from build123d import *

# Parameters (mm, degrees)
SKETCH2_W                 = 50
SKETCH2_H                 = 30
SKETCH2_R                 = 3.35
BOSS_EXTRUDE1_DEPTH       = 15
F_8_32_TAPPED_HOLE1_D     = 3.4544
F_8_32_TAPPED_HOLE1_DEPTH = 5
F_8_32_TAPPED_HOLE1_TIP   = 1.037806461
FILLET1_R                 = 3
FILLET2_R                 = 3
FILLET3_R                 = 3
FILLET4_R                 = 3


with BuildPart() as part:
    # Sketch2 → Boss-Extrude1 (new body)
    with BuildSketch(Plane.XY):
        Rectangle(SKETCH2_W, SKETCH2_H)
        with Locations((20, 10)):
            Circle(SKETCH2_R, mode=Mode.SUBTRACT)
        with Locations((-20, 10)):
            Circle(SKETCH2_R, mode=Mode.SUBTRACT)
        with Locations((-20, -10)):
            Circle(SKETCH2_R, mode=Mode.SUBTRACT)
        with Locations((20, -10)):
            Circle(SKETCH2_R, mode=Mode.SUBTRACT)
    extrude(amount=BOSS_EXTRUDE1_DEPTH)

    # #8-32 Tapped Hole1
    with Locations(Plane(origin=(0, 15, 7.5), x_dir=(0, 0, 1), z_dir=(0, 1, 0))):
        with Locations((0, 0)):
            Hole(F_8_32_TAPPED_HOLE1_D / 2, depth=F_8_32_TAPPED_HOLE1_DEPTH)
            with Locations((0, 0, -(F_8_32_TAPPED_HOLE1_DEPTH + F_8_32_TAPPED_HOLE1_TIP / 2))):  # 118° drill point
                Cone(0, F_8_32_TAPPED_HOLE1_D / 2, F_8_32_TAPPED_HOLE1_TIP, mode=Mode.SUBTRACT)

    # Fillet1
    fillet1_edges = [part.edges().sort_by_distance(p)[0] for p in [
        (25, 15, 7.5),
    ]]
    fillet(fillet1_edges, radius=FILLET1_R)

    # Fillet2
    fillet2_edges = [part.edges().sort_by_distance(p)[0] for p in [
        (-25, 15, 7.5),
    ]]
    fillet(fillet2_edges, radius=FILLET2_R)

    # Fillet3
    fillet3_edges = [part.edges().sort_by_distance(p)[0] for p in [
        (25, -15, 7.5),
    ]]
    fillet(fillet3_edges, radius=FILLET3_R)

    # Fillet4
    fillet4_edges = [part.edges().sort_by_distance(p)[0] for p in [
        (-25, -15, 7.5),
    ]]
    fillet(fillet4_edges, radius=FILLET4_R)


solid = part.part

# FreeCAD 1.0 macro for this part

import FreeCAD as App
import Part
import Sketcher
Q = App.Units.Quantity


def edges_at(feature, points):
    """Names of the edges that pass closest to the given points."""
    edges = feature.Shape.Edges
    near = lambda p: min(range(len(edges)), key=lambda i: edges[i].distToShape(Part.Vertex(*p))[0])
    return sorted({f"Edge{near(p) + 1}" for p in points})


def add_polygon(sketch, points):
    """Adds a closed chain of lines whose ends are joined by coincident constraints."""
    first, n = sketch.GeometryCount, len(points)
    for a, b in zip(points, points[1:] + points[:1]):
        sketch.addGeometry(Part.LineSegment(App.Vector(*a, 0), App.Vector(*b, 0)), False)
    for i in range(n):
        sketch.addConstraint(Sketcher.Constraint("Coincident", first + i, 2, first + (i + 1) % n, 1))

doc = App.newDocument("Part")
body = doc.addObject("PartDesign::Body", "Body")

# Sketch on XY plane
sketch1 = body.newObject("Sketcher::SketchObject", "Sketch")
sketch1.AttachmentSupport = (doc.getObject("XY_Plane"), [""])
sketch1.MapMode = "FlatFace"
add_polygon(sketch1, [(-25, 15), (-25, -15), (25, -15), (25, 15)])  # lines 0-3
sketch1.addGeometry(Part.Circle(App.Vector(-20, -10, 0), App.Vector(0, 0, 1), 3.4), False)  # 4
sketch1.addGeometry(Part.Circle(App.Vector(20, -10, 0), App.Vector(0, 0, 1), 3.4), False)  # 5
sketch1.addGeometry(Part.Circle(App.Vector(-20, 10, 0), App.Vector(0, 0, 1), 3.4), False)  # 6
sketch1.addGeometry(Part.Circle(App.Vector(20, 10, 0), App.Vector(0, 0, 1), 3.4), False)  # 7
sketch1.addConstraint([
    Sketcher.Constraint("Vertical", 0),
    Sketcher.Constraint("Horizontal", 1),
    Sketcher.Constraint("Vertical", 2),
    Sketcher.Constraint("Horizontal", 3),
    Sketcher.Constraint("Equal", 4, 5),
    Sketcher.Constraint("Equal", 5, 6),
    Sketcher.Constraint("Equal", 6, 7),
    Sketcher.Constraint("Symmetric", 5, 3, 6, 3, -1, 1),
    Sketcher.Constraint("Symmetric", 4, 3, 7, 3, -1, 1),
    Sketcher.Constraint("Symmetric", 0, 2, 2, 2, -1, 1),
    Sketcher.Constraint("Symmetric", 4, 3, 5, 3, -2),
    Sketcher.Constraint("Diameter", 4, Q("6.7 mm")),
    Sketcher.Constraint("DistanceX", 1, 1, 1, 2, Q("50 mm")),
    Sketcher.Constraint("DistanceY", 0, 2, 0, 1, Q("30 mm")),
    Sketcher.Constraint("DistanceX", 4, 3, -1, 1, Q("20 mm")),
    Sketcher.Constraint("DistanceY", 4, 3, -1, 1, Q("10 mm")),
])
pad1 = body.newObject("PartDesign::Pad", "Pad")
pad1.Profile = sketch1
pad1.Length = 15

# Sketch on XZ plane
sketch2 = body.newObject("Sketcher::SketchObject", "Sketch001")
sketch2.AttachmentSupport = (doc.getObject("XZ_Plane"), [""])
sketch2.MapMode = "FlatFace"
sketch2.AttachmentOffset = App.Placement(App.Vector(0, 0, -15), App.Rotation())
sketch2.addGeometry(Part.Circle(App.Vector(0, 7.5, 0), App.Vector(0, 0, 1), 1.7), False)
sketch2.addConstraint([
    Sketcher.Constraint("PointOnObject", 0, 3, -2),
    Sketcher.Constraint("Diameter", 0, Q("3.4544 mm")),
    Sketcher.Constraint("DistanceY", -1, 1, 0, 3, Q("7.5 mm")),
])
doc.recompute()
hole = body.newObject("PartDesign::Hole", "Hole")
hole.Profile = sketch2
hole.ThreadType = "None"
hole.Diameter = 3.4544
hole.DepthType = "Dimension"
hole.Depth = 5
hole.DrillPoint = "Angled"
hole.DrillPointAngle = 118
hole.Reversed = True
doc.recompute()

fillet = body.newObject("PartDesign::Fillet", "Fillet")
fillet.Base = (hole, edges_at(hole, [(25, 15, 7.5)]))
fillet.Radius = 3
doc.recompute()

fillet2 = body.newObject("PartDesign::Fillet", "Fillet001")
fillet2.Base = (fillet, edges_at(fillet, [(-25, 15, 7.5)]))
fillet2.Radius = 3
doc.recompute()

fillet3 = body.newObject("PartDesign::Fillet", "Fillet002")
fillet3.Base = (fillet2, edges_at(fillet2, [(25, -15, 7.5)]))
fillet3.Radius = 3
doc.recompute()

fillet4 = body.newObject("PartDesign::Fillet", "Fillet003")
fillet4.Base = (fillet3, edges_at(fillet3, [(-25, -15, 7.5)]))
fillet4.Radius = 3

doc.recompute()
